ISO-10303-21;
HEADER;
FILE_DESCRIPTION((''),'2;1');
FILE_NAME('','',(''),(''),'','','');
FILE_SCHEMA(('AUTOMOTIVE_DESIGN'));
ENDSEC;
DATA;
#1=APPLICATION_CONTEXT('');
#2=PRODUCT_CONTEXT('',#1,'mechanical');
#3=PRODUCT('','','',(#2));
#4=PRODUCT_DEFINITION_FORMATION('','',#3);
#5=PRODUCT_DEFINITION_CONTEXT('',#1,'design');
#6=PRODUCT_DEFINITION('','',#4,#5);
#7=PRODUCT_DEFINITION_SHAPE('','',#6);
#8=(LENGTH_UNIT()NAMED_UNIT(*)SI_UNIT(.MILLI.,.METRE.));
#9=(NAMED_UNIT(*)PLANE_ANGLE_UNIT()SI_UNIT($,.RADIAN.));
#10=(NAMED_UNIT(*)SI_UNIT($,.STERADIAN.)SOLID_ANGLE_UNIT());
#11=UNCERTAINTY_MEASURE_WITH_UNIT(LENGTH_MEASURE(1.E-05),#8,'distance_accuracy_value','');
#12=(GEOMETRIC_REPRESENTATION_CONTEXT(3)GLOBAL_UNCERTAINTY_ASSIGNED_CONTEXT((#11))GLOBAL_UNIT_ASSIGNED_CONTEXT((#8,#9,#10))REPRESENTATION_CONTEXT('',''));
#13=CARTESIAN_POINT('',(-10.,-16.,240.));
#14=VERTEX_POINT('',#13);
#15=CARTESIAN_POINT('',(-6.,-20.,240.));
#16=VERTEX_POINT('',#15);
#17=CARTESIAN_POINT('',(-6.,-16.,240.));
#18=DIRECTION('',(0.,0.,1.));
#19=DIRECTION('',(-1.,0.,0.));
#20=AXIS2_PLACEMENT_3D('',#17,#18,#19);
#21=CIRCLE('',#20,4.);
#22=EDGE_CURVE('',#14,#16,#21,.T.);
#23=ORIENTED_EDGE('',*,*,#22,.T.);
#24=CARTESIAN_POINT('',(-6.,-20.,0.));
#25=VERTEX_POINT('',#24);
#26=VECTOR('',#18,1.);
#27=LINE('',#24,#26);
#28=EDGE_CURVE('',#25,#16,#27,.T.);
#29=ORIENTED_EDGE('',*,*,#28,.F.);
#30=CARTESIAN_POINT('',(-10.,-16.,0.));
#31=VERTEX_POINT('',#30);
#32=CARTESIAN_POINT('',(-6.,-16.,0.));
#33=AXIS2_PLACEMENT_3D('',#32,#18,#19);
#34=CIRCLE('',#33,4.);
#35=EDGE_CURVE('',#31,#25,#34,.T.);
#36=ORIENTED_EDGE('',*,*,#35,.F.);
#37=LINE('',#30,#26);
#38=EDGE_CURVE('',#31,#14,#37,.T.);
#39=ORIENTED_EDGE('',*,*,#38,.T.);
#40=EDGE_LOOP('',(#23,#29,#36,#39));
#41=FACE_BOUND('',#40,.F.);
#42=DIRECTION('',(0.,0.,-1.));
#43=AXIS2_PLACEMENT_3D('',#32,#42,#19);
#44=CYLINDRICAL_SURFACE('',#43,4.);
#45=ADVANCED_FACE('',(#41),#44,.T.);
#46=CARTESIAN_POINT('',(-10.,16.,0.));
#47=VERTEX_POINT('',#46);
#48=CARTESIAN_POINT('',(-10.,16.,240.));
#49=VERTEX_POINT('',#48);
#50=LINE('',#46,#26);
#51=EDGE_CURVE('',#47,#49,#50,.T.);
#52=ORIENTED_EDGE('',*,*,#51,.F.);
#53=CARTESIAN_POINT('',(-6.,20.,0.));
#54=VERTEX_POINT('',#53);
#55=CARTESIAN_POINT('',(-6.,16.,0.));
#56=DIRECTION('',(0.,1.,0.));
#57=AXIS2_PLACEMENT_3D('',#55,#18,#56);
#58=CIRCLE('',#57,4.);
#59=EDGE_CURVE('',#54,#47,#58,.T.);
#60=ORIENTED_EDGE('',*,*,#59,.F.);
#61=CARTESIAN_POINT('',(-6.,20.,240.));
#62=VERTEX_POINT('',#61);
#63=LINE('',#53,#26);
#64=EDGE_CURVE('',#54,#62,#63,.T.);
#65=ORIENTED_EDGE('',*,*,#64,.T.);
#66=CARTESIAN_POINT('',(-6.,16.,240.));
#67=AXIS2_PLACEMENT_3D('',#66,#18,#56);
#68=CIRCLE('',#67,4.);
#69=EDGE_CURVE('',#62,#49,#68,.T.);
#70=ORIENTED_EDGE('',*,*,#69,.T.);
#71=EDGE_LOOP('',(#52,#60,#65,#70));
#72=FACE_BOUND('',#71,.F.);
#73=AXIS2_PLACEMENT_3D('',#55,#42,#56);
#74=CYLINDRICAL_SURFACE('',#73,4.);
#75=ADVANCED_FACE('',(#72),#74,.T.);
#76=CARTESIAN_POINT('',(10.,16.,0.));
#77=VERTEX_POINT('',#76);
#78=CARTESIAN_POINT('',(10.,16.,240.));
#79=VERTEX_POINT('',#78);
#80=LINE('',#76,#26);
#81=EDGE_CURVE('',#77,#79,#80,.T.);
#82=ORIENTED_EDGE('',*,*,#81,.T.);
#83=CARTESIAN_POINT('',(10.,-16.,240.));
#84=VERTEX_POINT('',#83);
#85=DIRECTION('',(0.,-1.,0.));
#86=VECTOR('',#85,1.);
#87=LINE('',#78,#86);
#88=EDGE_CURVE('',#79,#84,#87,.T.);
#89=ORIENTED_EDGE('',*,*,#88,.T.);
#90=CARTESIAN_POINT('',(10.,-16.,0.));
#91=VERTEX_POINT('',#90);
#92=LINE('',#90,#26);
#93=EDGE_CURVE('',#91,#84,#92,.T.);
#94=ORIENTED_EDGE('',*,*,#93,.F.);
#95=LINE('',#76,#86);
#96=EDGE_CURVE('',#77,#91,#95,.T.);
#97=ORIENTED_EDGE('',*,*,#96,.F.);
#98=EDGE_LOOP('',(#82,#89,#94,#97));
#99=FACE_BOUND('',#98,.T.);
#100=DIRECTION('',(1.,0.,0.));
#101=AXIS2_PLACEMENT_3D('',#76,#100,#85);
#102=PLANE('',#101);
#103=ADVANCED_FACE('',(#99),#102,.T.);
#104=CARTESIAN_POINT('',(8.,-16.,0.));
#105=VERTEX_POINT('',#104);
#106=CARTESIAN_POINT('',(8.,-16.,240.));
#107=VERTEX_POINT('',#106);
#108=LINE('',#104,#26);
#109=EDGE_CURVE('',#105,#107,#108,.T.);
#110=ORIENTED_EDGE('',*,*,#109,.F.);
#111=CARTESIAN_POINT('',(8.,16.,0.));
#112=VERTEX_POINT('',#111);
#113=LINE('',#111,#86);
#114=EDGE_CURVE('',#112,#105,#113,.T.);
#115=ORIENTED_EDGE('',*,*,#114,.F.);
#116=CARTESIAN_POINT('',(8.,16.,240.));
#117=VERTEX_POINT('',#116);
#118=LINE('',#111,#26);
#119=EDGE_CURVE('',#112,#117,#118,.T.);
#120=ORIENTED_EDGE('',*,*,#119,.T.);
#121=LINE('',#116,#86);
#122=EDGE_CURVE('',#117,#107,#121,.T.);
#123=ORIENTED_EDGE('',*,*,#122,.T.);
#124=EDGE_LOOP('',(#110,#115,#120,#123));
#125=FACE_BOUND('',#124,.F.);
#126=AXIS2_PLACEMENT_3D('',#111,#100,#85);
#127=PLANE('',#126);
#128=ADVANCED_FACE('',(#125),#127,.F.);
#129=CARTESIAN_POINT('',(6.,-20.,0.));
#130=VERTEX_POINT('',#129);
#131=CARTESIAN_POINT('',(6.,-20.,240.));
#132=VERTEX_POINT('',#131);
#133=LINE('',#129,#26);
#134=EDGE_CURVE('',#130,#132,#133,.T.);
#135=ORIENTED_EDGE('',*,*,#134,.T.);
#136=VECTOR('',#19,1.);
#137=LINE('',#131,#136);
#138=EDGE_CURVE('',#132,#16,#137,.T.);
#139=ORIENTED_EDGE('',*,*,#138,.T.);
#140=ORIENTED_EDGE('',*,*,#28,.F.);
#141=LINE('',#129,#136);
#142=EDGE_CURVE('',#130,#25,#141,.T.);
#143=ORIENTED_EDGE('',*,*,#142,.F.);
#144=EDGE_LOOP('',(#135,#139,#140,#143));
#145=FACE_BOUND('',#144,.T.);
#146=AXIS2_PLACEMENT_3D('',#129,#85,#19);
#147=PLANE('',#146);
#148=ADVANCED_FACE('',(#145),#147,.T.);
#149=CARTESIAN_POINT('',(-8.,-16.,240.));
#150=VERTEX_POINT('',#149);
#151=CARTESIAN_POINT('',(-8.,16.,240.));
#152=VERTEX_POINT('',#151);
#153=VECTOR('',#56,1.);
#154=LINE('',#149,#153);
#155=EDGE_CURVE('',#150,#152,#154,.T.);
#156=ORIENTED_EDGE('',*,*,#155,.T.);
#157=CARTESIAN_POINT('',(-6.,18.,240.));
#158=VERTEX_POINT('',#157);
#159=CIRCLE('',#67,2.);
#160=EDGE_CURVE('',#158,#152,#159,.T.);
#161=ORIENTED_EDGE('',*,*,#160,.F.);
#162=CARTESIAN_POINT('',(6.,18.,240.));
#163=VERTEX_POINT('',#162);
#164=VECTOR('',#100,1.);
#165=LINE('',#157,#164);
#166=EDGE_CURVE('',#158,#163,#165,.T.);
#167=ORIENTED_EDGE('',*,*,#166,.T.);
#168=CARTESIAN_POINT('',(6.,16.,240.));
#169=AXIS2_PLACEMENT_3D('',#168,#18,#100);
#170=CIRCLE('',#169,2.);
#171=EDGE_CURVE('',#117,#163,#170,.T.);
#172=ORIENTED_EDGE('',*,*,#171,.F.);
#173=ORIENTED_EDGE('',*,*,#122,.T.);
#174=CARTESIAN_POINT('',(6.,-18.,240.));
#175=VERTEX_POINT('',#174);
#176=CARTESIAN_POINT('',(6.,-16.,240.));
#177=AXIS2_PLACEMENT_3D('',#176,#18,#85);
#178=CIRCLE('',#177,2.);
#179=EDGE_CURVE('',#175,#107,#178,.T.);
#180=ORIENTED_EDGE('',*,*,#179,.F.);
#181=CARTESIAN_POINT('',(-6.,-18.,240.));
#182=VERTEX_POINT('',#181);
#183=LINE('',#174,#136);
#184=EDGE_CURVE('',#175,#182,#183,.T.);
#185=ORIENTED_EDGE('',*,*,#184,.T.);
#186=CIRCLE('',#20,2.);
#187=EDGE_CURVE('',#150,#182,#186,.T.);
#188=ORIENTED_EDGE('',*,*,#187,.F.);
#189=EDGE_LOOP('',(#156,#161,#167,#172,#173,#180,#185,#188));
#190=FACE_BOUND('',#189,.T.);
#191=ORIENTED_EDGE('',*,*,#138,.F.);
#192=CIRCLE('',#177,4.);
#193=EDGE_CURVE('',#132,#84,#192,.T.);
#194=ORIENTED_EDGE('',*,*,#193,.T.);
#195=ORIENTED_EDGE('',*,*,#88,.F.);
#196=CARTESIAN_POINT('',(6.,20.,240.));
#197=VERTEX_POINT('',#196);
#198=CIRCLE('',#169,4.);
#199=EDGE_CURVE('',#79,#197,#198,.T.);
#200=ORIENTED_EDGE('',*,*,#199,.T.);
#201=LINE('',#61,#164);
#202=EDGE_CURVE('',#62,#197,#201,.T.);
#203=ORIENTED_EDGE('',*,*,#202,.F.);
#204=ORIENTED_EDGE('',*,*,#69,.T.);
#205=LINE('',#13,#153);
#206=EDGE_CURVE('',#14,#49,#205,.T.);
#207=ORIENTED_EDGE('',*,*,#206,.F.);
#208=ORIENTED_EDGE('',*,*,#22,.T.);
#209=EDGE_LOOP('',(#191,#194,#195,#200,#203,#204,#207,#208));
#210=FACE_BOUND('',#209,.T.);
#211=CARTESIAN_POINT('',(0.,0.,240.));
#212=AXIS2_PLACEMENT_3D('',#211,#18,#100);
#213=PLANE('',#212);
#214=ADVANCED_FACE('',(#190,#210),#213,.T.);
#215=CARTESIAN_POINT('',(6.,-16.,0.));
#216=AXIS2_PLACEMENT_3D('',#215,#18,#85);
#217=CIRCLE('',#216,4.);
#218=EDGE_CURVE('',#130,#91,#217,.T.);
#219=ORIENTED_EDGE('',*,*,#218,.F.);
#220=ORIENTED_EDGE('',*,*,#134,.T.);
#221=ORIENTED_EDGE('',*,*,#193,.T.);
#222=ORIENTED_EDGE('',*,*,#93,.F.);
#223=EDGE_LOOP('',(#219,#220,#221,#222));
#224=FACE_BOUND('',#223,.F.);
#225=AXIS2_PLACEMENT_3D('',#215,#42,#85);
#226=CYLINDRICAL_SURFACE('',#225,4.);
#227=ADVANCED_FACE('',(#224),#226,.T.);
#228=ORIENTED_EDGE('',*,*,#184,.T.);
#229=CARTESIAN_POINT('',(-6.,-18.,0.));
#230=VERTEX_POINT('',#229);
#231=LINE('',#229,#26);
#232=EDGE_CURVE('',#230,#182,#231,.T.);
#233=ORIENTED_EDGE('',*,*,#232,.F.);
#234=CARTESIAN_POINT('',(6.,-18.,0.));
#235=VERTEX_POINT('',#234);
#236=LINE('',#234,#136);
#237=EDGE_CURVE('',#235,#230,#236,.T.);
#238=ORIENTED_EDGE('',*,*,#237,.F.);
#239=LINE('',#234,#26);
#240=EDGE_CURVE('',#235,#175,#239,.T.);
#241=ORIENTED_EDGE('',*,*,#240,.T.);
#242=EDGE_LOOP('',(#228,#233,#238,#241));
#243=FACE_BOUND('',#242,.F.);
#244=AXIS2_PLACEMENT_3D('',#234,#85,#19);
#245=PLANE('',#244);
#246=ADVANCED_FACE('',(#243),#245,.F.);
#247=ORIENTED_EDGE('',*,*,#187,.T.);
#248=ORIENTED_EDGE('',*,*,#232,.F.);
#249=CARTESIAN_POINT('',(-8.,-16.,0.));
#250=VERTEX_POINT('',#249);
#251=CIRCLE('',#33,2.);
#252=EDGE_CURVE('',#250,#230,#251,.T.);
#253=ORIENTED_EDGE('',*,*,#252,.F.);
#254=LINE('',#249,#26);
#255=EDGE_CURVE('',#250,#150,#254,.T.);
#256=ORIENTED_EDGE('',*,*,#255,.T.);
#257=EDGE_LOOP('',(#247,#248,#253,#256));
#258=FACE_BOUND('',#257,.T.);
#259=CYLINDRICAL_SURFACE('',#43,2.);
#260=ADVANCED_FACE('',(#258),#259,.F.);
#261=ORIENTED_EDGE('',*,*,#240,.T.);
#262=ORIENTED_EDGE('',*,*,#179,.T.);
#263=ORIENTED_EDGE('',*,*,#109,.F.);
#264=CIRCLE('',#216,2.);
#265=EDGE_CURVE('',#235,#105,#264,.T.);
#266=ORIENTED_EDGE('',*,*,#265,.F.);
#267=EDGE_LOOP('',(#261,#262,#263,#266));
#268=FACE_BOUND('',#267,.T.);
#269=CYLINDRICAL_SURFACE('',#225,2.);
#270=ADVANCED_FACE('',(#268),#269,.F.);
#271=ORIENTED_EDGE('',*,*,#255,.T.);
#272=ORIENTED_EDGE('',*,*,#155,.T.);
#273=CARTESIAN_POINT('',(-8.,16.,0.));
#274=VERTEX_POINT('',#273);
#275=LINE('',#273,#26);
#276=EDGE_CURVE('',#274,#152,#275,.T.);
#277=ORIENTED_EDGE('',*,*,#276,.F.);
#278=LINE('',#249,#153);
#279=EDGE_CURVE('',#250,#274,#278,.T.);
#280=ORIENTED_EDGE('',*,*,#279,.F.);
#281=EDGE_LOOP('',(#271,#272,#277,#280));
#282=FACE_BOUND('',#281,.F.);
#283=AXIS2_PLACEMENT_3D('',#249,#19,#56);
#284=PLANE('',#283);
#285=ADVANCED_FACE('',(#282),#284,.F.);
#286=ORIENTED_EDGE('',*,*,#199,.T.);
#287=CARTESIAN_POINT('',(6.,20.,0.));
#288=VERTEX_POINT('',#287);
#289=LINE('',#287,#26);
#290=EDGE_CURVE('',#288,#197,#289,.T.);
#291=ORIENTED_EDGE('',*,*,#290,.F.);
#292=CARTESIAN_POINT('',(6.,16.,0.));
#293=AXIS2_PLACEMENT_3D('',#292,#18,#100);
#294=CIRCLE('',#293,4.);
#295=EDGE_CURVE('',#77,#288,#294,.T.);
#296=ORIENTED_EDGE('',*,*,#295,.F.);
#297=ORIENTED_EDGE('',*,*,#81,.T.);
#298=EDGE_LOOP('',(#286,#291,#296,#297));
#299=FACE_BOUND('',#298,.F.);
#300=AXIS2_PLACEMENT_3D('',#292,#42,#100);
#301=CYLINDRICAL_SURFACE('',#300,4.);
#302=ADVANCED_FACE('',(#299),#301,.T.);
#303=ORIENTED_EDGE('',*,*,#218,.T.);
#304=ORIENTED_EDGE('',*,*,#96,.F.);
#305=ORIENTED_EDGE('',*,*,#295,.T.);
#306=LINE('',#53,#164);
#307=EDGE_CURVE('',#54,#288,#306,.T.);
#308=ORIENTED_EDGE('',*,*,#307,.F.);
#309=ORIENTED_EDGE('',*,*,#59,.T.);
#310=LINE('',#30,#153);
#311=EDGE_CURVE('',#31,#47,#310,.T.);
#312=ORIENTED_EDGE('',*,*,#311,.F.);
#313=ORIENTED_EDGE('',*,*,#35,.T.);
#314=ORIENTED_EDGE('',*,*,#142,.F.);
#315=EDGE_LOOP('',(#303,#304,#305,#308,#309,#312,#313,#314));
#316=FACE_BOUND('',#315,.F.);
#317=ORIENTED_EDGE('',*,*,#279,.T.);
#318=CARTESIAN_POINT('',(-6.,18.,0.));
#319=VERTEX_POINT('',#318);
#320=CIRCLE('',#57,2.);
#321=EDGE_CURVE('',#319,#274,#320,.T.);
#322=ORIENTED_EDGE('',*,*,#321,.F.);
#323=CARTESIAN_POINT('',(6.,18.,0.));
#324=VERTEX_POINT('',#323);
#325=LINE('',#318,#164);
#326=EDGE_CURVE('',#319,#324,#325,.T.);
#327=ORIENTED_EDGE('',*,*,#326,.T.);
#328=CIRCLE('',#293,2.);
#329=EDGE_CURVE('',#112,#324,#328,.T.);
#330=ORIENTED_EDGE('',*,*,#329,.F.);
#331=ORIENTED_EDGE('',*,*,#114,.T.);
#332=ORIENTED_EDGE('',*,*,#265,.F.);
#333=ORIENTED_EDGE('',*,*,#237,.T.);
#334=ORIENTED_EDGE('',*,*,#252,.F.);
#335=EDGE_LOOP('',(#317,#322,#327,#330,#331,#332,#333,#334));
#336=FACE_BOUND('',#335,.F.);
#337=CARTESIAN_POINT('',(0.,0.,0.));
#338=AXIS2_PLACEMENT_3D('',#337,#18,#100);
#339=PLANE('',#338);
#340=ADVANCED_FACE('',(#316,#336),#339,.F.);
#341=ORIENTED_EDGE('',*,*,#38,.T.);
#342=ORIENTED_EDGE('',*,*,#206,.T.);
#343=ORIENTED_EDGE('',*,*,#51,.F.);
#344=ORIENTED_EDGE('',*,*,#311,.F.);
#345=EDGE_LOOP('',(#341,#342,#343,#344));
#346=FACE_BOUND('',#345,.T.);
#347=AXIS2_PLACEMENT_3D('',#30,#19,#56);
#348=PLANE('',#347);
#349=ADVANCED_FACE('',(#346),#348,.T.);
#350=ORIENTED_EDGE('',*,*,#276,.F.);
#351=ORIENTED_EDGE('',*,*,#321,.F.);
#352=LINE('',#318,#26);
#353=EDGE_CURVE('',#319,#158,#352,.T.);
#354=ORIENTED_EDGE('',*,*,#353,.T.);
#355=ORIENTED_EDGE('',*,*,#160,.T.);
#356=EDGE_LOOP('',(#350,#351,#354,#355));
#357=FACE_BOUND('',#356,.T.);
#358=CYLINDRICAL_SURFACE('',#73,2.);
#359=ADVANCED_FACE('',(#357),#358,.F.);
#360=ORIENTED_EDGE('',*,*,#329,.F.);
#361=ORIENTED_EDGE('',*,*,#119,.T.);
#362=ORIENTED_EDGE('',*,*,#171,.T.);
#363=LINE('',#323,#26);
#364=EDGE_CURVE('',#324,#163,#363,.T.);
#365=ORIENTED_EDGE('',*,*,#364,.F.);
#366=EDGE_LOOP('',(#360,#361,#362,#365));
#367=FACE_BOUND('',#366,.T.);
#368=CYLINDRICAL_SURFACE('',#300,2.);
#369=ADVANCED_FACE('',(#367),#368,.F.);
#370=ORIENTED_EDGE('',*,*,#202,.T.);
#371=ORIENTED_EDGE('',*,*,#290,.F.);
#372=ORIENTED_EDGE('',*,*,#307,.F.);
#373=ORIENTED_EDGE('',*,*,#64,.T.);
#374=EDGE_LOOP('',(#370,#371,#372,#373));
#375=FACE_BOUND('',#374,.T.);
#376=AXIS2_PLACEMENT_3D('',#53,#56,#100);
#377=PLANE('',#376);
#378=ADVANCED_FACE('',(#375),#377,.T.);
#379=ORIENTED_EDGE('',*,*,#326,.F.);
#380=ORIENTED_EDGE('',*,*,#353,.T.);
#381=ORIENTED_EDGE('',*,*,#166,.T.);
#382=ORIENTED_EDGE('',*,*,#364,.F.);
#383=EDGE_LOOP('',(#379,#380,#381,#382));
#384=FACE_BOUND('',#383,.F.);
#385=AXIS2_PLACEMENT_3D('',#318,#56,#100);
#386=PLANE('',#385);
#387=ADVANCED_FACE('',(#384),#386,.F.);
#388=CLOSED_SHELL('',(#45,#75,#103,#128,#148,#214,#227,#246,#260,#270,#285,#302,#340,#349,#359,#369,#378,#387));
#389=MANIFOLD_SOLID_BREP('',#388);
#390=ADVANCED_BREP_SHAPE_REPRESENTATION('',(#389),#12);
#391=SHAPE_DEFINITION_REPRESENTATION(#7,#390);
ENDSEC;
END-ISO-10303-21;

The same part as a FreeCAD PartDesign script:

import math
import FreeCAD as App
import Part
import Sketcher

V = App.Vector
Q = App.Units.Quantity

doc = App.newDocument("Part")
body = doc.addObject("PartDesign::Body", "Body")

sketch1 = body.newObject("Sketcher::SketchObject", "Sketch")
sketch1.AttachmentSupport = (doc.getObject("XY_Plane"), [""])
sketch1.MapMode = "FlatFace"
sketch1.addGeometry([
    Part.LineSegment(V(-10, 16, 0), V(-10, -16, 0)),
    Part.ArcOfCircle(Part.Circle(V(-6, -16, 0), V(0, 0, 1), 4), math.radians(180), math.radians(270)),
    Part.LineSegment(V(-6, -20, 0), V(6, -20, 0)),
    Part.ArcOfCircle(Part.Circle(V(6, -16, 0), V(0, 0, 1), 4), math.radians(-90), math.radians(0)),
    Part.LineSegment(V(10, -16, 0), V(10, 16, 0)),
    Part.ArcOfCircle(Part.Circle(V(6, 16, 0), V(0, 0, 1), 4), math.radians(0), math.radians(90)),
    Part.LineSegment(V(6, 20, 0), V(-6, 20, 0)),
    Part.ArcOfCircle(Part.Circle(V(-6, 16, 0), V(0, 0, 1), 4), math.radians(90), math.radians(180)),
    Part.ArcOfCircle(Part.Circle(V(-6, 16, 0), V(0, 0, 1), 2), math.radians(90), math.radians(180)),
    Part.LineSegment(V(-6, 18, 0), V(6, 18, 0)),
    Part.ArcOfCircle(Part.Circle(V(6, 16, 0), V(0, 0, 1), 2), math.radians(0), math.radians(90)),
    Part.LineSegment(V(8, 16, 0), V(8, -16, 0)),
    Part.ArcOfCircle(Part.Circle(V(6, -16, 0), V(0, 0, 1), 2), math.radians(-90), math.radians(0)),
    Part.LineSegment(V(6, -18, 0), V(-6, -18, 0)),
    Part.ArcOfCircle(Part.Circle(V(-6, -16, 0), V(0, 0, 1), 2), math.radians(180), math.radians(270)),
    Part.LineSegment(V(-8, -16, 0), V(-8, 16, 0)),
], False)
sketch1.addConstraint([
    Sketcher.Constraint("Tangent", 0, 2, 1, 1),
    Sketcher.Constraint("Tangent", 1, 2, 2, 1),
    Sketcher.Constraint("Tangent", 2, 2, 3, 1),
    Sketcher.Constraint("Tangent", 3, 2, 4, 1),
    Sketcher.Constraint("Tangent", 4, 2, 5, 1),
    Sketcher.Constraint("Tangent", 5, 2, 6, 1),
    Sketcher.Constraint("Tangent", 6, 2, 7, 1),
    Sketcher.Constraint("Tangent", 7, 2, 0, 1),
    Sketcher.Constraint("Tangent", 8, 1, 9, 1),
    Sketcher.Constraint("Tangent", 9, 2, 10, 2),
    Sketcher.Constraint("Tangent", 10, 1, 11, 1),
    Sketcher.Constraint("Tangent", 11, 2, 12, 2),
    Sketcher.Constraint("Tangent", 12, 1, 13, 1),
    Sketcher.Constraint("Tangent", 13, 2, 14, 2),
    Sketcher.Constraint("Tangent", 14, 1, 15, 1),
    Sketcher.Constraint("Tangent", 15, 2, 8, 2),
    Sketcher.Constraint("Vertical", 0),
    Sketcher.Constraint("Horizontal", 2),
    Sketcher.Constraint("Vertical", 4),
    Sketcher.Constraint("Horizontal", 6),
    Sketcher.Constraint("Horizontal", 9),
    Sketcher.Constraint("Vertical", 11),
    Sketcher.Constraint("Horizontal", 13),
    Sketcher.Constraint("Vertical", 15),
    Sketcher.Constraint("Coincident", 8, 3, 7, 3),
    Sketcher.Constraint("Coincident", 10, 3, 5, 3),
    Sketcher.Constraint("Coincident", 12, 3, 3, 3),
    Sketcher.Constraint("Equal", 1, 3),
    Sketcher.Constraint("Equal", 3, 5),
    Sketcher.Constraint("Equal", 5, 7),
    Sketcher.Constraint("Equal", 12, 14),
    Sketcher.Constraint("Symmetric", 1, 3, 5, 3, -1, 1),
    Sketcher.Constraint("Radius", 1, Q("4 mm")),
    Sketcher.Constraint("Radius", 8, Q("2 mm")),
    Sketcher.Constraint("DistanceX", 0, 2, -1, 1, Q("10 mm")),
    Sketcher.Constraint("DistanceY", 1, 2, -1, 1, Q("20 mm")),
])
pad1 = body.newObject("PartDesign::Pad", "Pad")
pad1.Profile = sketch1
pad1.Length = 240

doc.recompute()
